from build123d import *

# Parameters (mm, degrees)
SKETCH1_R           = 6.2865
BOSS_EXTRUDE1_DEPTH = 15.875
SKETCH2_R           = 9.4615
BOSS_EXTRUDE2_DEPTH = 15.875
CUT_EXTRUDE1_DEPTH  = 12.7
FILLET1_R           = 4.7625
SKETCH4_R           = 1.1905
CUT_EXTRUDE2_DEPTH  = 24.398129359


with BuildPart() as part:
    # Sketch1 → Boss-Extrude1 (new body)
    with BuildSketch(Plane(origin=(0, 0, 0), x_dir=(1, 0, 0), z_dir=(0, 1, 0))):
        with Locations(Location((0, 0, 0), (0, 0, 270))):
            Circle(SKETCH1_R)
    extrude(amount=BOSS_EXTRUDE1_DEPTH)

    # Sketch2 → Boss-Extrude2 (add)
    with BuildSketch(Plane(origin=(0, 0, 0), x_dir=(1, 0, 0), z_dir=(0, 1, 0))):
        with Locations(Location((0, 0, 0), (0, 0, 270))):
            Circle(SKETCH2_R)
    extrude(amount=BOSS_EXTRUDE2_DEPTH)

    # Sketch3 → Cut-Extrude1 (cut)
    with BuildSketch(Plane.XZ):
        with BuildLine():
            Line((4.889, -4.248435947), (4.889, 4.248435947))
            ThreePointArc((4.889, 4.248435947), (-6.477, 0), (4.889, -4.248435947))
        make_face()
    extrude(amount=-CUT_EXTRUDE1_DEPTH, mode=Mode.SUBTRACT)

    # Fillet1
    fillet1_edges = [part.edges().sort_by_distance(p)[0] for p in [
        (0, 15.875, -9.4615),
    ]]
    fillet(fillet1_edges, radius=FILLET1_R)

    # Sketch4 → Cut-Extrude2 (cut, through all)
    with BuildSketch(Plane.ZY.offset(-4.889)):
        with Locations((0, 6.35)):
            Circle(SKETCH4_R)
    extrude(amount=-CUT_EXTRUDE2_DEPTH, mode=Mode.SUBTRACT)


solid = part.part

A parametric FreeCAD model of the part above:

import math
import FreeCAD as App
import Part
import Sketcher
Q = App.Units.Quantity


def edges_at(feature, points):
    """Names of the edges that pass closest to the given points."""
    edges = feature.Shape.Edges
    near = lambda p: min(range(len(edges)), key=lambda i: edges[i].distToShape(Part.Vertex(*p))[0])
    return sorted({f"Edge{near(p) + 1}" for p in points})

doc = App.newDocument("Part")
params = doc.addObject("Spreadsheet::Sheet", "Params")
for row, (alias, value) in enumerate([
    ("sketch1_diameter", "0.495 in"),
    ("pad1_length", "0.625 in"),
    ("sketch2_diameter", "0.745 in"),
    ("pad2_length", "0.625 in"),
    ("sketch3_radius", "0.255 in"),
    ("pocket1_length", "0.5 in"),
    ("fillet_radius", "0.1875 in"),
], start=1):
    params.set(f"A{row}", alias)
    params.set(f"B{row}", "=" + value)
    params.setAlias(f"B{row}", alias)

body = doc.addObject("PartDesign::Body", "Body")

sketch1 = body.newObject("Sketcher::SketchObject", "Sketch")
sketch1.AttachmentSupport = (doc.getObject("XZ_Plane"), [""])
sketch1.MapMode = "FlatFace"
sketch1.addGeometry(Part.Circle(App.Vector(0, 0, 0), App.Vector(0, 0, 1), 6), False)
sketch1.addConstraint(Sketcher.Constraint("Coincident", 0, 3, -1, 1))
sketch1.addConstraint(Sketcher.Constraint("Diameter", 0, Q("0.495 in")))
sketch1.setExpression("Constraints[1]", "Params.sketch1_diameter")
pad1 = body.newObject("PartDesign::Pad", "Pad")
pad1.Profile = sketch1
pad1.setExpression("Length", "Params.pad1_length")
pad1.Reversed = True

sketch2 = body.newObject("Sketcher::SketchObject", "Sketch001")
sketch2.AttachmentSupport = (doc.getObject("XZ_Plane"), [""])
sketch2.MapMode = "FlatFace"
sketch2.addGeometry(Part.Circle(App.Vector(0, 0, 0), App.Vector(0, 0, 1), 9), False)
sketch2.addConstraint(Sketcher.Constraint("Coincident", 0, 3, -1, 1))
sketch2.addConstraint(Sketcher.Constraint("Diameter", 0, Q("0.745 in")))
sketch2.setExpression("Constraints[1]", "Params.sketch2_diameter")
pad2 = body.newObject("PartDesign::Pad", "Pad001")
pad2.Profile = sketch2
pad2.setExpression("Length", "Params.pad2_length")
pad2.Reversed = True

sketch3 = body.newObject("Sketcher::SketchObject", "Sketch002")
sketch3.AttachmentSupport = (doc.getObject("XZ_Plane"), [""])
sketch3.MapMode = "FlatFace"
sketch3.addGeometry(Part.LineSegment(App.Vector(5, -4, 0), App.Vector(5, 4, 0)), False)
sketch3.addGeometry(Part.ArcOfCircle(Part.Circle(App.Vector(0, 0, 0), App.Vector(0, 0, 1), 6), math.radians(41), math.radians(319)), False)
sketch3.addConstraint(Sketcher.Constraint("Coincident", 0, 1, 1, 2))
sketch3.addConstraint(Sketcher.Constraint("Coincident", 1, 1, 0, 2))
sketch3.addConstraint(Sketcher.Constraint("Vertical", 0))
sketch3.addConstraint(Sketcher.Constraint("Coincident", 1, 3, -1, 1))
sketch3.addConstraint(Sketcher.Constraint("Radius", 1, Q("0.255 in")))
sketch3.addConstraint(Sketcher.Constraint("DistanceY", 0, 1, 0, 2, Q("8.496872 mm")))
sketch3.setExpression("Constraints[4]", "Params.sketch3_radius")
pocket1 = body.newObject("PartDesign::Pocket", "Pocket")
pocket1.Profile = sketch3
pocket1.setExpression("Length", "Params.pocket1_length")
doc.recompute()

fillet = body.newObject("PartDesign::Fillet", "Fillet")
fillet.Base = (pocket1, edges_at(pocket1, [(0, 15.875, -9.461)]))
fillet.setExpression("Radius", "Params.fillet_radius")

sketch4 = body.newObject("Sketcher::SketchObject", "Sketch003")
sketch4.AttachmentSupport = (doc.getObject("YZ_Plane"), [""])
sketch4.MapMode = "FlatFace"
sketch4.AttachmentOffset = App.Placement(App.Vector(0, 0, 4.889), App.Rotation())
sketch4.addGeometry(Part.Circle(App.Vector(6.3, 0, 0), App.Vector(0, 0, 1), 1.2), False)
sketch4.addConstraint(Sketcher.Constraint("PointOnObject", 0, 3, -1))
sketch4.addConstraint(Sketcher.Constraint("Diameter", 0, Q("2.381 mm")))
sketch4.addConstraint(Sketcher.Constraint("DistanceX", -1, 1, 0, 3, Q("0.25 in")))
pocket2 = body.newObject("PartDesign::Pocket", "Pocket001")
pocket2.Profile = sketch4
pocket2.Type = "ThroughAll"
pocket2.Reversed = True

doc.recompute()
